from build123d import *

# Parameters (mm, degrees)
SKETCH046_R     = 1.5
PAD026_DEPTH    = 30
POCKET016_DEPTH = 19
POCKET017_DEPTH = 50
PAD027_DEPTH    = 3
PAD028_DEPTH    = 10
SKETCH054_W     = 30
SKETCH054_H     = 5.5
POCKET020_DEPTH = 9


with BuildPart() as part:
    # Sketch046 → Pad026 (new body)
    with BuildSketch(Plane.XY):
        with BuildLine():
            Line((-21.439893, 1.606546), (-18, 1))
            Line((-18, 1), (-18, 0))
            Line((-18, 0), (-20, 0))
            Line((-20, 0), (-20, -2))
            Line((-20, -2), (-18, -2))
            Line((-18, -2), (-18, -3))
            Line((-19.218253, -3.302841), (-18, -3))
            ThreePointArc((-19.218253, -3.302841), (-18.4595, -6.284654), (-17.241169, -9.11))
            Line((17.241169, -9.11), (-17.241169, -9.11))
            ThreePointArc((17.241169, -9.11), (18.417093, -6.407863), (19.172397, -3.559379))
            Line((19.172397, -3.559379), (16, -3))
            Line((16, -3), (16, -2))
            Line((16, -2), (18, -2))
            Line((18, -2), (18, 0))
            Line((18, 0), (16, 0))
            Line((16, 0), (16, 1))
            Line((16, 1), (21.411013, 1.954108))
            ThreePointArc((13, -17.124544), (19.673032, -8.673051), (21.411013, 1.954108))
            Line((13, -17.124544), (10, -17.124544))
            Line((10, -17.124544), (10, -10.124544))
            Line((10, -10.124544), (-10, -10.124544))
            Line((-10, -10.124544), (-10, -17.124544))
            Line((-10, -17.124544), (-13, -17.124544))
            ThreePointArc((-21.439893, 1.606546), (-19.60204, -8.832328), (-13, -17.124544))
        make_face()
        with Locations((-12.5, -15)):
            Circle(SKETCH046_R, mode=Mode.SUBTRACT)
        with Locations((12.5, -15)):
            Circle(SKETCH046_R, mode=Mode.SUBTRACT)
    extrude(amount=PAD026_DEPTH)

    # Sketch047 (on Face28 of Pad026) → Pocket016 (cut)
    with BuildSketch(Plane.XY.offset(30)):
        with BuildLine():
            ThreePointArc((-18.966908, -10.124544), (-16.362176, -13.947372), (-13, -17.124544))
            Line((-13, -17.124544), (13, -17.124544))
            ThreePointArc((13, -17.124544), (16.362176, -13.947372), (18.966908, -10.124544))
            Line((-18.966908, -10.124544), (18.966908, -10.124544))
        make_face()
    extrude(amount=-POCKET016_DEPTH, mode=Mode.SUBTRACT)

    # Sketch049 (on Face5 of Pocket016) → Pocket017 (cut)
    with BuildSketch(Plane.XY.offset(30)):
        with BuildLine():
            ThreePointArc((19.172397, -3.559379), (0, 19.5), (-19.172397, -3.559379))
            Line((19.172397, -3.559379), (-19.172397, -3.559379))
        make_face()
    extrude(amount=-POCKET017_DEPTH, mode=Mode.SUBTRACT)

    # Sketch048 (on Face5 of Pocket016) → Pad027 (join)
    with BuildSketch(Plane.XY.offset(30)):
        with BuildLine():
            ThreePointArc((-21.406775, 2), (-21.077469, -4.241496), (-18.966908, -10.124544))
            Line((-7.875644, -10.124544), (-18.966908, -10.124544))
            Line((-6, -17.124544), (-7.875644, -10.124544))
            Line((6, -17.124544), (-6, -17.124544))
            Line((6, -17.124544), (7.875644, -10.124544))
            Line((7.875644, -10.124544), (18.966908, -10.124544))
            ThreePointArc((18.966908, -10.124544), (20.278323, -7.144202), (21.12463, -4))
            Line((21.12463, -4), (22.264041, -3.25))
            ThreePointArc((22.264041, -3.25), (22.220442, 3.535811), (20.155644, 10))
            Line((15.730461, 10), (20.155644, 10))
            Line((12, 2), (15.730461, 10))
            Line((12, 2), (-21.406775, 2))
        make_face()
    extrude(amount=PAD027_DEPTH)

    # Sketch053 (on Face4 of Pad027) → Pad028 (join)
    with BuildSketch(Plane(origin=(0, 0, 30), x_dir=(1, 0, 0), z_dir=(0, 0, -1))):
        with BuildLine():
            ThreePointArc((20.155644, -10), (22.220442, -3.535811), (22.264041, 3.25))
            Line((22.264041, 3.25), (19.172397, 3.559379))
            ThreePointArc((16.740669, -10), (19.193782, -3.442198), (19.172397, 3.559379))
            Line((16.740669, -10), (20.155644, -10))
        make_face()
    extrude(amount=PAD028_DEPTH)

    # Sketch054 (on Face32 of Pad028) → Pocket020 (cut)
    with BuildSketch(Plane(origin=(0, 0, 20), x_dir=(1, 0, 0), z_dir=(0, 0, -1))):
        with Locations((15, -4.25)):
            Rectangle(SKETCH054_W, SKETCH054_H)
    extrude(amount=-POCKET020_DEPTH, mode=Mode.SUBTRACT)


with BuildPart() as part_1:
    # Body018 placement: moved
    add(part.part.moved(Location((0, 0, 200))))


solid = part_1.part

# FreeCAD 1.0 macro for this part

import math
import FreeCAD as App
import Part
import Sketcher
Q = App.Units.Quantity

doc = App.newDocument("Part")
body = doc.addObject("PartDesign::Body", "Body")

sketch1 = body.newObject("Sketcher::SketchObject", "Sketch")
sketch1.AttachmentSupport = (doc.getObject("XY_Plane"), [""])
sketch1.MapMode = "FlatFace"
sketch1.addGeometry([
    Part.LineSegment(App.Vector(-18, 1, 0), App.Vector(-21.439893, 1.606546, 0)),
    Part.ArcOfCircle(Part.Circle(App.Vector(0.000003, 0.000001, 0), App.Vector(0, 0, 1), 21.500003), math.radians(175.714693), math.radians(232.796253)),
    Part.LineSegment(App.Vector(-13, -17.124544, 0), App.Vector(-10, -17.124544, 0)),
    Part.LineSegment(App.Vector(-10, -17.124544, 0), App.Vector(-10, -10.124544, 0)),
    Part.LineSegment(App.Vector(-10, -10.124544, 0), App.Vector(10, -10.124544, 0)),
    Part.LineSegment(App.Vector(10, -10.124544, 0), App.Vector(10, -17.124544, 0)),
    Part.LineSegment(App.Vector(10, -17.124544, 0), App.Vector(13, -17.124544, 0)),
    Part.ArcOfCircle(Part.Circle(App.Vector(-0.000002, 0.000001, 0), App.Vector(0, 0, 1), 21.500002), math.radians(-52.796254), math.radians(5.214735)),
    Part.LineSegment(App.Vector(21.411013, 1.954108, 0), App.Vector(16, 1, 0)),
    Part.LineSegment(App.Vector(16, 1, 0), App.Vector(16, 0, 0)),
    Part.LineSegment(App.Vector(16, 0, 0), App.Vector(18, 0, 0)),
    Part.LineSegment(App.Vector(18, 0, 0), App.Vector(18, -2, 0)),
    Part.LineSegment(App.Vector(18, -2, 0), App.Vector(16, -2, 0)),
    Part.LineSegment(App.Vector(16, -2, 0), App.Vector(16, -3, 0)),
    Part.LineSegment(App.Vector(16, -3, 0), App.Vector(19.172397, -3.559379, 0)),
    Part.ArcOfCircle(Part.Circle(App.Vector(0.000054, -0.000021, 0), App.Vector(0, 0, 1), 19.499943), math.radians(-27.851386), math.radians(-10.51726)),
    Part.LineSegment(App.Vector(17.241169, -9.11, 0), App.Vector(-17.241169, -9.11, 0)),
    Part.ArcOfCircle(Part.Circle(App.Vector(-0.000016, -0.000006, 0), App.Vector(0, 0, 1), 19.499983), math.radians(-170.248441), math.radians(-152.148627)),
    Part.LineSegment(App.Vector(-19.218253, -3.302841, 0), App.Vector(-18, -3, 0)),
    Part.LineSegment(App.Vector(-18, -3, 0), App.Vector(-18, -2, 0)),
    Part.LineSegment(App.Vector(-18, -2, 0), App.Vector(-20, -2, 0)),
    Part.LineSegment(App.Vector(-20, -2, 0), App.Vector(-20, 0, 0)),
    Part.LineSegment(App.Vector(-20, 0, 0), App.Vector(-18, 0, 0)),
    Part.LineSegment(App.Vector(-18, 0, 0), App.Vector(-18, 1, 0)),
    Part.Circle(App.Vector(12.5, -15, 0), App.Vector(0, 0, 1), 1.5),
    Part.Circle(App.Vector(-12.5, -15, 0), App.Vector(0, 0, 1), 1.5),
], False)
sketch1.addConstraint([
    Sketcher.Constraint("Coincident", 0, 2, 1, 1),
    Sketcher.Constraint("Coincident", 1, 2, 2, 1),
    Sketcher.Constraint("Coincident", 2, 2, 3, 1),
    Sketcher.Constraint("Coincident", 3, 2, 4, 1),
    Sketcher.Constraint("Coincident", 4, 2, 5, 1),
    Sketcher.Constraint("Coincident", 5, 2, 6, 1),
    Sketcher.Constraint("Coincident", 6, 2, 7, 1),
    Sketcher.Constraint("Coincident", 7, 2, 8, 1),
    Sketcher.Constraint("Coincident", 8, 2, 9, 1),
    Sketcher.Constraint("Coincident", 9, 2, 10, 1),
    Sketcher.Constraint("Coincident", 10, 2, 11, 1),
    Sketcher.Constraint("Coincident", 11, 2, 12, 1),
    Sketcher.Constraint("Coincident", 12, 2, 13, 1),
    Sketcher.Constraint("Coincident", 13, 2, 14, 1),
    Sketcher.Constraint("Coincident", 14, 2, 15, 2),
    Sketcher.Constraint("Coincident", 15, 1, 16, 1),
    Sketcher.Constraint("Coincident", 16, 2, 17, 2),
    Sketcher.Constraint("Coincident", 17, 1, 18, 1),
    Sketcher.Constraint("Coincident", 18, 2, 19, 1),
    Sketcher.Constraint("Coincident", 19, 2, 20, 1),
    Sketcher.Constraint("Coincident", 20, 2, 21, 1),
    Sketcher.Constraint("Coincident", 21, 2, 22, 1),
    Sketcher.Constraint("Coincident", 22, 2, 23, 1),
    Sketcher.Constraint("Coincident", 23, 2, 0, 1),
    Sketcher.Constraint("Horizontal", 2),
    Sketcher.Constraint("Vertical", 3),
    Sketcher.Constraint("Horizontal", 4),
    Sketcher.Constraint("Vertical", 5),
    Sketcher.Constraint("Horizontal", 6),
    Sketcher.Constraint("Vertical", 9),
    Sketcher.Constraint("Horizontal", 10),
    Sketcher.Constraint("Vertical", 11),
    Sketcher.Constraint("Horizontal", 12),
    Sketcher.Constraint("Vertical", 13),
    Sketcher.Constraint("Horizontal", 16),
    Sketcher.Constraint("Vertical", 19),
    Sketcher.Constraint("Horizontal", 20),
    Sketcher.Constraint("Vertical", 21),
    Sketcher.Constraint("Horizontal", 22),
    Sketcher.Constraint("Vertical", 23),
    Sketcher.Constraint("Coincident", 1, 3, -1, 1),
    Sketcher.Constraint("Coincident", 7, 3, -1, 1),
    Sketcher.Constraint("Equal", 1, 7),
    Sketcher.Constraint("Equal", 24, 25),
    Sketcher.Constraint("Symmetric", 10, 2, 22, 2, -1, 1),
    Sketcher.Constraint("Symmetric", 24, 3, 25, 3, -2),
    Sketcher.Constraint("Symmetric", 2, 2, 5, 2, -2),
    Sketcher.Constraint("Symmetric", 11, 2, 19, 2, -2),
    Sketcher.Constraint("PointOnObject", 9, 2, -1),
    Sketcher.Constraint("Parallel", 0, 14),
    Sketcher.Constraint("Horizontal", 13, 2, 18, 2),
    Sketcher.Constraint("Horizontal", 8, 2, 23, 2),
    Sketcher.Constraint("Vertical", 9, 2, 12, 2),
    Sketcher.Constraint("Equal", 12, 20),
    Sketcher.Constraint("Equal", 22, 11),
    Sketcher.Constraint("Equal", 9, 13),
    Sketcher.Constraint("Diameter", 24, 3.0),
    Sketcher.Constraint("Radius", 7, 21.500002),
    Sketcher.Constraint("DistanceX", 2, 1, 2, 2, 3.0),
    Sketcher.Constraint("DistanceX", 4, 1, 4, 2, 20.0),
    Sketcher.Constraint("DistanceX", 10, 1, 10, 2, 2.0),
    Sketcher.Constraint("DistanceY", 3, 1, 3, 2, 7.0),
    Sketcher.Constraint("DistanceY", 9, 2, 9, 1, 1.0),
    Sketcher.Constraint("Angle", 0, Q("169.999999 deg")),
    Sketcher.Constraint("Angle", 8, Q("-169.999996 deg")),
    Sketcher.Constraint("DistanceY", 24, 3, -1, 1, 15.0),
    Sketcher.Constraint("DistanceX", -1, 1, 8, 2, 16.0),
    Sketcher.Constraint("DistanceX", 25, 3, 24, 3, 25.0),
    Sketcher.Constraint("Angle", 18, Q("13.959983 deg")),
    Sketcher.Constraint("DistanceY", 15, 1, -1, 1, 9.11),
    Sketcher.Constraint("Radius", 15, 19.499943),
    Sketcher.Constraint("Radius", 17, 19.499983),
    Sketcher.Constraint("Distance", 18, 1.25533),
    Sketcher.Constraint("DistanceX", 16, 2, 16, 1, 34.482338),
    Sketcher.Constraint("DistanceY", 14, 2, -1, 1, 3.559379),
    Sketcher.Constraint("DistanceX", -1, 1, 15, 1, 17.241169),
])
pad1 = body.newObject("PartDesign::Pad", "Pad")
pad1.Profile = sketch1
pad1.Length = 30

sketch2 = body.newObject("Sketcher::SketchObject", "Sketch001")
sketch2.AttachmentSupport = (doc.getObject("XY_Plane"), [""])
sketch2.MapMode = "FlatFace"
sketch2.AttachmentOffset = App.Placement(App.Vector(0, 0, 30), App.Rotation())
sketch2.addGeometry([
    Part.ArcOfCircle(Part.Circle(App.Vector(0.000008, 0.000006, 0), App.Vector(0, 0, 1), 21.500009), math.radians(-151.906677), math.radians(-127.203752)),
    Part.LineSegment(App.Vector(-13, -17.124544, 0), App.Vector(13, -17.124544, 0)),
    Part.ArcOfCircle(Part.Circle(App.Vector(-0.000008, 0.000006, 0), App.Vector(0, 0, 1), 21.500009), math.radians(-52.796248), math.radians(-28.093323)),
    Part.LineSegment(App.Vector(18.966908, -10.124544, 0), App.Vector(-18.966908, -10.124544, 0)),
], False)
sketch2.addConstraint([
    Sketcher.Constraint("Coincident", 0, 2, 1, 1),
    Sketcher.Constraint("Coincident", 1, 2, 2, 1),
    Sketcher.Constraint("Coincident", 2, 2, 3, 1),
    Sketcher.Constraint("Coincident", 3, 2, 0, 1),
    Sketcher.Constraint("Horizontal", 1),
    Sketcher.Constraint("Horizontal", 3),
    Sketcher.Constraint("Coincident", 0, 3, -1, 1),
    Sketcher.Constraint("Coincident", 2, 3, -1, 1),
    Sketcher.Constraint("Equal", 0, 2),
    Sketcher.Constraint("DistanceX", 1, 1, 1, 2, 26.0),
    Sketcher.Constraint("DistanceY", 1, 2, 2, 2, 7.0),
    Sketcher.Constraint("Radius", 0, 21.500009),
])
pocket1 = body.newObject("PartDesign::Pocket", "Pocket")
pocket1.Profile = sketch2
pocket1.Length = 19

sketch3 = body.newObject("Sketcher::SketchObject", "Sketch002")
sketch3.AttachmentSupport = (doc.getObject("XY_Plane"), [""])
sketch3.MapMode = "FlatFace"
sketch3.AttachmentOffset = App.Placement(App.Vector(0, 0, 30), App.Rotation())
sketch3.addGeometry([
    Part.ArcOfCircle(Part.Circle(App.Vector(0, 0, 0), App.Vector(0, 0, 1), 19.5), math.radians(-10.517293), math.radians(190.517293)),
    Part.LineSegment(App.Vector(-19.172397, -3.559379, 0), App.Vector(19.172397, -3.559379, 0)),
], False)
sketch3.addConstraint([
    Sketcher.Constraint("Coincident", 0, 1, 1, 2),
    Sketcher.Constraint("Coincident", 1, 1, 0, 2),
    Sketcher.Constraint("Horizontal", 1),
    Sketcher.Constraint("Coincident", 0, 3, -1, 1),
    Sketcher.Constraint("Radius", 0, 19.5),
    Sketcher.Constraint("DistanceX", 1, 1, 1, 2, 38.344794),
])
pocket2 = body.newObject("PartDesign::Pocket", "Pocket001")
pocket2.Profile = sketch3
pocket2.Length = 50

sketch4 = body.newObject("Sketcher::SketchObject", "Sketch003")
sketch4.AttachmentSupport = (doc.getObject("XY_Plane"), [""])
sketch4.MapMode = "FlatFace"
sketch4.AttachmentOffset = App.Placement(App.Vector(0, 0, 30), App.Rotation())
sketch4.addGeometry([
    Part.ArcOfCircle(Part.Circle(App.Vector(0.000008, 0.000003, 0), App.Vector(0, 0, 1), 21.500008), math.radians(174.662452), math.radians(208.093316)),
    Part.LineSegment(App.Vector(-18.966908, -10.124544, 0), App.Vector(-7.875644, -10.124544, 0)),
    Part.LineSegment(App.Vector(-7.875644, -10.124544, 0), App.Vector(-6, -17.124544, 0)),
    Part.LineSegment(App.Vector(-6, -17.124544, 0), App.Vector(6, -17.124544, 0)),
    Part.LineSegment(App.Vector(6, -17.124544, 0), App.Vector(7.875644, -10.124544, 0)),
    Part.LineSegment(App.Vector(7.875644, -10.124544, 0), App.Vector(18.966908, -10.124544, 0)),
    Part.ArcOfCircle(Part.Circle(App.Vector(0.000028, -0.00001, 0), App.Vector(0, 0, 1), 21.499971), math.radians(-28.093332), math.radians(-10.722141)),
    Part.LineSegment(App.Vector(21.12463, -4, 0), App.Vector(22.264041, -3.25, 0)),
    Part.ArcOfCircle(Part.Circle(App.Vector(0, -0.000001, 0), App.Vector(0, 0, 1), 22.500001), math.radians(-8.305106), math.radians(26.387803)),
    Part.LineSegment(App.Vector(20.155644, 10, 0), App.Vector(15.730461, 10, 0)),
    Part.LineSegment(App.Vector(15.730461, 10, 0), App.Vector(12, 2, 0)),
    Part.LineSegment(App.Vector(12, 2, 0), App.Vector(-21.406775, 2, 0)),
], False)
sketch4.addConstraint([
    Sketcher.Constraint("Coincident", 0, 2, 1, 1),
    Sketcher.Constraint("Coincident", 1, 2, 2, 1),
    Sketcher.Constraint("Coincident", 2, 2, 3, 1),
    Sketcher.Constraint("Coincident", 3, 2, 4, 1),
    Sketcher.Constraint("Coincident", 4, 2, 5, 1),
    Sketcher.Constraint("Coincident", 5, 2, 6, 1),
    Sketcher.Constraint("Coincident", 6, 2, 7, 1),
    Sketcher.Constraint("Coincident", 7, 2, 8, 1),
    Sketcher.Constraint("Coincident", 8, 2, 9, 1),
    Sketcher.Constraint("Coincident", 9, 2, 10, 1),
    Sketcher.Constraint("Coincident", 10, 2, 11, 1),
    Sketcher.Constraint("Coincident", 11, 2, 0, 1),
    Sketcher.Constraint("Horizontal", 1),
    Sketcher.Constraint("Horizontal", 3),
    Sketcher.Constraint("Horizontal", 5),
    Sketcher.Constraint("Horizontal", 9),
    Sketcher.Constraint("Horizontal", 11),
    Sketcher.Constraint("Coincident", 0, 3, -1, 1),
    Sketcher.Constraint("Coincident", 8, 3, -1, 1),
    Sketcher.Constraint("Radius", 8, 22.500001),
    Sketcher.Constraint("DistanceX", 3, 1, 3, 2, 12.0),
    Sketcher.Constraint("DistanceX", 2, 2, -1, 1, 6.0),
    Sketcher.Constraint("DistanceY", 6, 2, -1, 1, 4.0),
    Sketcher.Constraint("DistanceY", -1, 1, 8, 2, 10.0),
    Sketcher.Constraint("DistanceX", -1, 1, 10, 2, 12.0),
    Sketcher.Constraint("DistanceY", -1, 1, 10, 2, 2.0),
    Sketcher.Constraint("DistanceY", 2, 2, 1, 2, 7.0),
    Sketcher.Constraint("DistanceY", 3, 2, 4, 2, 7.0),
    Sketcher.Constraint("DistanceY", 7, 2, -1, 1, 3.25),
    Sketcher.Constraint("Radius", 0, 21.500008),
    Sketcher.Constraint("Radius", 6, 21.499971),
    Sketcher.Constraint("DistanceX", 0, 3, 5, 2, 18.9669),
    Sketcher.Constraint("DistanceX", 1, 1, 1, 2, 11.091264),
    Sketcher.Constraint("DistanceX", 5, 1, 5, 2, 11.091264),
    Sketcher.Constraint("DistanceX", 9, 2, 9, 1, 4.425183),
    Sketcher.Constraint("DistanceX", 0, 2, -1, 1, 18.966908),
    Sketcher.Constraint("DistanceX", -1, 1, 6, 2, 21.12463),
])
pad2 = body.newObject("PartDesign::Pad", "Pad001")
pad2.Profile = sketch4
pad2.Length = 3

sketch5 = body.newObject("Sketcher::SketchObject", "Sketch004")
sketch5.AttachmentSupport = (doc.getObject("XY_Plane"), [""])
sketch5.MapMode = "FlatFace"
sketch5.AttachmentOffset = App.Placement(App.Vector(0, 0, 30), App.Rotation())
sketch5.addGeometry([
    Part.ArcOfCircle(Part.Circle(App.Vector(0, -0.000001, 0), App.Vector(0, 0, 1), 22.500001), math.radians(-8.305106), math.radians(26.387803)),
    Part.LineSegment(App.Vector(22.264041, -3.25, 0), App.Vector(19.172397, -3.559379, 0)),
    Part.ArcOfCircle(Part.Circle(App.Vector(0.000001, 0.000001, 0), App.Vector(0, 0, 1), 19.499999), math.radians(-10.517294), math.radians(30.851886)),
    Part.LineSegment(App.Vector(16.740669, 10, 0), App.Vector(20.155644, 10, 0)),
], False)
sketch5.addConstraint([
    Sketcher.Constraint("Coincident", 0, 1, 1, 1),
    Sketcher.Constraint("Coincident", 1, 2, 2, 1),
    Sketcher.Constraint("Coincident", 2, 2, 3, 1),
    Sketcher.Constraint("Coincident", 3, 2, 0, 2),
    Sketcher.Constraint("Horizontal", 3),
    Sketcher.Constraint("Coincident", 0, 3, -1, 1),
    Sketcher.Constraint("Coincident", 2, 3, -1, 1),
    Sketcher.Constraint("Radius", 0, 22.500001),
    Sketcher.Constraint("Radius", 2, 19.499999),
    Sketcher.Constraint("DistanceY", -1, 1, 2, 2, 10.0),
    Sketcher.Constraint("DistanceY", 0, 1, -1, 1, 3.25),
    Sketcher.Constraint("DistanceY", 1, 2, -1, 1, 3.559379),
])
pad3 = body.newObject("PartDesign::Pad", "Pad002")
pad3.Profile = sketch5
pad3.Length = 10
pad3.Reversed = True

sketch6 = body.newObject("Sketcher::SketchObject", "Sketch005")
sketch6.AttachmentSupport = (doc.getObject("XY_Plane"), [""])
sketch6.MapMode = "FlatFace"
sketch6.AttachmentOffset = App.Placement(App.Vector(0, 0, 20), App.Rotation())
sketch6.addGeometry([
    Part.LineSegment(App.Vector(0, 1.5, 0), App.Vector(0, 7, 0)),
    Part.LineSegment(App.Vector(0, 7, 0), App.Vector(30, 7, 0)),
    Part.LineSegment(App.Vector(30, 7, 0), App.Vector(30, 1.5, 0)),
    Part.LineSegment(App.Vector(30, 1.5, 0), App.Vector(0, 1.5, 0)),
], False)
sketch6.addConstraint([
    Sketcher.Constraint("Coincident", 0, 2, 1, 1),
    Sketcher.Constraint("Coincident", 1, 2, 2, 1),
    Sketcher.Constraint("Coincident", 2, 2, 3, 1),
    Sketcher.Constraint("Coincident", 3, 2, 0, 1),
    Sketcher.Constraint("Vertical", 0),
    Sketcher.Constraint("Horizontal", 1),
    Sketcher.Constraint("Vertical", 2),
    Sketcher.Constraint("Horizontal", 3),
    Sketcher.Constraint("PointOnObject", 0, 2, -2),
    Sketcher.Constraint("DistanceX", 1, 1, 1, 2, 30.0),
    Sketcher.Constraint("DistanceY", 0, 1, 0, 2, 5.5),
    Sketcher.Constraint("DistanceY", -1, 1, 0, 2, 7.0),
])
pocket3 = body.newObject("PartDesign::Pocket", "Pocket002")
pocket3.Profile = sketch6
pocket3.Length = 9
pocket3.Reversed = True
body2 = doc.addObject("PartDesign::Body", "Body001")
doc.recompute()

body.Placement = App.Placement(App.Vector(0, 0, 200), App.Rotation(App.Vector(0, 0, 1), 0))
boolean = body2.newObject("PartDesign::Boolean", "Boolean")
boolean.Type = "Fuse"
boolean.addObjects([body])

doc.recompute()
